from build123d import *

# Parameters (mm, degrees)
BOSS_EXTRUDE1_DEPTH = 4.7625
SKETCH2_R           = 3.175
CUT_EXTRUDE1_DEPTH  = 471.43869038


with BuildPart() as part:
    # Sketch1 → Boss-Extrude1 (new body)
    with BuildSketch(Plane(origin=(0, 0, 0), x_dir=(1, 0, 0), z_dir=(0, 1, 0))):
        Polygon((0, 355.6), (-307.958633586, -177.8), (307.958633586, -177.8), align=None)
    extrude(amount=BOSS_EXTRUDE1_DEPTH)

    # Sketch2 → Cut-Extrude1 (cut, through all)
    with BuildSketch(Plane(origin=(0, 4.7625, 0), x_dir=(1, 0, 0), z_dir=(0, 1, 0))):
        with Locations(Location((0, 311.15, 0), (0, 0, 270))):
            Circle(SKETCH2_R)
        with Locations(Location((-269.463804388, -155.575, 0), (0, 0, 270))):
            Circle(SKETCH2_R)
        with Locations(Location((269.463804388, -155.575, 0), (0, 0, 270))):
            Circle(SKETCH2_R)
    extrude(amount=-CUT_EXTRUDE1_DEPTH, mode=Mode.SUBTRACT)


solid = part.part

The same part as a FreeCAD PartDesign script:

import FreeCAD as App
import Part
import Sketcher
from FreeCAD import Vector
Q = App.Units.Quantity


def add_polygon(sketch, points):
    """Adds a closed chain of lines whose ends are joined by coincident constraints."""
    first, n = sketch.GeometryCount, len(points)
    for a, b in zip(points, points[1:] + points[:1]):
        sketch.addGeometry(Part.LineSegment(App.Vector(*a, 0), App.Vector(*b, 0)), False)
    for i in range(n):
        sketch.addConstraint(Sketcher.Constraint("Coincident", first + i, 2, first + (i + 1) % n, 1))

doc = App.newDocument("Part")
body = doc.addObject("PartDesign::Body", "Body")

# Sketch on XZ plane
sketch1 = body.newObject("Sketcher::SketchObject", "Sketch")
sketch1.AttachmentSupport = (doc.getObject("XZ_Plane"), [""])
sketch1.MapMode = "FlatFace"
add_polygon(sketch1, [(0, -355.6), (-307.958634, 177.8), (307.958634, 177.8)])  # lines 0-2
sketch1.addConstraint(Sketcher.Constraint("Horizontal", 1))
sketch1.addConstraint(Sketcher.Constraint("PointOnObject", 2, 2, -2))
sketch1.addConstraint(Sketcher.Constraint("Equal", 0, 2))
sketch1.addConstraint(Sketcher.Constraint("DistanceY", -1, 1, 0, 2, Q("7 in")))
sketch1.addConstraint(Sketcher.Constraint("DistanceY", 2, 2, -1, 1, Q("14 in")))
sketch1.addConstraint(Sketcher.Constraint("Angle", 0, Q("120 deg")))
pad1 = body.newObject("PartDesign::Pad", "Pad")
pad1.Profile = sketch1
pad1.Length = Q("0.1875 in")
pad1.Reversed = True

# Sketch on XZ plane
sketch2 = body.newObject("Sketcher::SketchObject", "Sketch001")
sketch2.AttachmentSupport = (doc.getObject("XZ_Plane"), [""])
sketch2.MapMode = "FlatFace"
sketch2.AttachmentOffset = App.Placement(Vector(0, 0, -0.1875 * 25.4), App.Rotation())
sketch2.addGeometry(Part.Circle(Vector(0, -311.15, 0), Vector(0, 0, 1), 3.175), False)
sketch2.addGeometry(Part.Circle(Vector(-269.463804, 155.575, 0), Vector(0, 0, 1), 3.175), False)
sketch2.addGeometry(Part.Circle(Vector(269.463804, 155.575, 0), Vector(0, 0, 1), 3.175), False)
sketch2.addConstraint(Sketcher.Constraint("Equal", 0, 1))
sketch2.addConstraint(Sketcher.Constraint("Equal", 1, 2))
sketch2.addConstraint(Sketcher.Constraint("Symmetric", 1, 3, 2, 3, -2))
sketch2.addConstraint(Sketcher.Constraint("PointOnObject", 0, 3, -2))
sketch2.addConstraint(Sketcher.Constraint("Diameter", 0, Q("0.25 in")))
sketch2.addConstraint(Sketcher.Constraint("DistanceY", 0, 3, -1, 1, Q("12.25 in")))
sketch2.addConstraint(Sketcher.Constraint("DistanceY", -1, 1, 1, 3, Q("6.125 in")))
sketch2.addConstraint(Sketcher.Constraint("DistanceX", 1, 3, 2, 3, Q("538.927609 mm")))
pocket1 = body.newObject("PartDesign::Pocket", "Pocket")
pocket1.Profile = sketch2
pocket1.Type = "ThroughAll"
pocket1.Reversed = True

doc.recompute()
